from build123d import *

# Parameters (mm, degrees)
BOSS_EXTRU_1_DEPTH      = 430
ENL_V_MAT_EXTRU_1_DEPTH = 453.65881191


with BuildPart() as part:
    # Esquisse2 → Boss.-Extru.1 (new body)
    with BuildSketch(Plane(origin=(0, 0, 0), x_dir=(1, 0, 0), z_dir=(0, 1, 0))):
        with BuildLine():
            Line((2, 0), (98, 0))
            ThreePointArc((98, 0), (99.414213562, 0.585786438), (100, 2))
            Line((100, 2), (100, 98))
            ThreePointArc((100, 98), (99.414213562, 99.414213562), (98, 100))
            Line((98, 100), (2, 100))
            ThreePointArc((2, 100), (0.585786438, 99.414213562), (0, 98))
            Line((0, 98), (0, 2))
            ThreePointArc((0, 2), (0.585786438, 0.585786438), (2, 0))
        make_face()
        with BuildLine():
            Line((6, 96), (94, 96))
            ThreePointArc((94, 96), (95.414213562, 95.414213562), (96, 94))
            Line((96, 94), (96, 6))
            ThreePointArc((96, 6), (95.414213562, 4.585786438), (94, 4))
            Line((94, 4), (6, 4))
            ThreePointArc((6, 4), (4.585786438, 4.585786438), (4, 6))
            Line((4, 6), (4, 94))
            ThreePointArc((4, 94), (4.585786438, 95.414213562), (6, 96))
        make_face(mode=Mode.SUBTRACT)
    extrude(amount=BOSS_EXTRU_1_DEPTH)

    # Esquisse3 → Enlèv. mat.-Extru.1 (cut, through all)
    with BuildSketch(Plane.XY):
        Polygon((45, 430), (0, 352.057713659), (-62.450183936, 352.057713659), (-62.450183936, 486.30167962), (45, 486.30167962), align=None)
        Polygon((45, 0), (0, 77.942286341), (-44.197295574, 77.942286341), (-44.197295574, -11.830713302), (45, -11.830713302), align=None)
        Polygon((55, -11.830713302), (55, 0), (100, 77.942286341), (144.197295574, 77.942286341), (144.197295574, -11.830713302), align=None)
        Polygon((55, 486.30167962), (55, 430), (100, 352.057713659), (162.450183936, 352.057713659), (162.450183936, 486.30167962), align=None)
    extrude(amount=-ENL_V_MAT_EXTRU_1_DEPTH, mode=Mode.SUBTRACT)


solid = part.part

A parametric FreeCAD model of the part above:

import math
import FreeCAD as App
import Part
import Sketcher
Q = App.Units.Quantity


def add_polygon(sketch, points):
    """Adds a closed chain of lines whose ends are joined by coincident constraints."""
    first, n = sketch.GeometryCount, len(points)
    for a, b in zip(points, points[1:] + points[:1]):
        sketch.addGeometry(Part.LineSegment(App.Vector(*a, 0), App.Vector(*b, 0)), False)
    for i in range(n):
        sketch.addConstraint(Sketcher.Constraint("Coincident", first + i, 2, first + (i + 1) % n, 1))

doc = App.newDocument("Part")
params = doc.addObject("Spreadsheet::Sheet", "Params")
for row, (alias, value) in enumerate([
    ("sketch1_radius", "2 mm"),
    ("sketch1_width", "96 mm"),
    ("sketch1_width2", "88 mm"),
    ("pad1_length", "430 mm"),
    ("sketch2_length", "90 mm"),
], start=1):
    params.set(f"A{row}", alias)
    params.set(f"B{row}", "=" + value)
    params.setAlias(f"B{row}", alias)

body = doc.addObject("PartDesign::Body", "Body")

sketch1 = body.newObject("Sketcher::SketchObject", "Sketch")
sketch1.AttachmentSupport = (doc.getObject("XZ_Plane"), [""])
sketch1.MapMode = "FlatFace"
sketch1.addGeometry(Part.LineSegment(App.Vector(2, 0, 0), App.Vector(98, 0, 0)), False)
sketch1.addGeometry(Part.ArcOfCircle(Part.Circle(App.Vector(98, -2, 0), App.Vector(0, 0, 1), 2), math.radians(0), math.radians(90)), False)
sketch1.addGeometry(Part.LineSegment(App.Vector(100, -2, 0), App.Vector(100, -98, 0)), False)
sketch1.addGeometry(Part.ArcOfCircle(Part.Circle(App.Vector(98, -98, 0), App.Vector(0, 0, 1), 2), math.radians(-90), math.radians(0)), False)
sketch1.addGeometry(Part.LineSegment(App.Vector(98, -100, 0), App.Vector(2, -100, 0)), False)
sketch1.addGeometry(Part.ArcOfCircle(Part.Circle(App.Vector(2, -98, 0), App.Vector(0, 0, 1), 2), math.radians(-180), math.radians(-90)), False)
sketch1.addGeometry(Part.LineSegment(App.Vector(0, -98, 0), App.Vector(0, -2, 0)), False)
sketch1.addGeometry(Part.ArcOfCircle(Part.Circle(App.Vector(2, -2, 0), App.Vector(0, 0, 1), 2), math.radians(90), math.radians(180)), False)
sketch1.addGeometry(Part.ArcOfCircle(Part.Circle(App.Vector(6, -94, 0), App.Vector(0, 0, 1), 2), math.radians(-180), math.radians(-90)), False)
sketch1.addGeometry(Part.LineSegment(App.Vector(6, -96, 0), App.Vector(94, -96, 0)), False)
sketch1.addGeometry(Part.ArcOfCircle(Part.Circle(App.Vector(94, -94, 0), App.Vector(0, 0, 1), 2), math.radians(-90), math.radians(0)), False)
sketch1.addGeometry(Part.LineSegment(App.Vector(96, -94, 0), App.Vector(96, -6, 0)), False)
sketch1.addGeometry(Part.ArcOfCircle(Part.Circle(App.Vector(94, -6, 0), App.Vector(0, 0, 1), 2), math.radians(0), math.radians(90)), False)
sketch1.addGeometry(Part.LineSegment(App.Vector(94, -4, 0), App.Vector(6, -4, 0)), False)
sketch1.addGeometry(Part.ArcOfCircle(Part.Circle(App.Vector(6, -6, 0), App.Vector(0, 0, 1), 2), math.radians(90), math.radians(180)), False)
sketch1.addGeometry(Part.LineSegment(App.Vector(4, -6, 0), App.Vector(4, -94, 0)), False)
sketch1.addConstraint(Sketcher.Constraint("Tangent", 0, 2, 1, 2))
sketch1.addConstraint(Sketcher.Constraint("Tangent", 1, 1, 2, 1))
sketch1.addConstraint(Sketcher.Constraint("Tangent", 2, 2, 3, 2))
sketch1.addConstraint(Sketcher.Constraint("Tangent", 3, 1, 4, 1))
sketch1.addConstraint(Sketcher.Constraint("Tangent", 4, 2, 5, 2))
sketch1.addConstraint(Sketcher.Constraint("Tangent", 5, 1, 6, 1))
sketch1.addConstraint(Sketcher.Constraint("Tangent", 6, 2, 7, 2))
sketch1.addConstraint(Sketcher.Constraint("Tangent", 7, 1, 0, 1))
sketch1.addConstraint(Sketcher.Constraint("Tangent", 8, 2, 9, 1))
sketch1.addConstraint(Sketcher.Constraint("Tangent", 9, 2, 10, 1))
sketch1.addConstraint(Sketcher.Constraint("Tangent", 10, 2, 11, 1))
sketch1.addConstraint(Sketcher.Constraint("Tangent", 11, 2, 12, 1))
sketch1.addConstraint(Sketcher.Constraint("Tangent", 12, 2, 13, 1))
sketch1.addConstraint(Sketcher.Constraint("Tangent", 13, 2, 14, 1))
sketch1.addConstraint(Sketcher.Constraint("Tangent", 14, 2, 15, 1))
sketch1.addConstraint(Sketcher.Constraint("Tangent", 15, 2, 8, 1))
sketch1.addConstraint(Sketcher.Constraint("Horizontal", 0))
sketch1.addConstraint(Sketcher.Constraint("Vertical", 2))
sketch1.addConstraint(Sketcher.Constraint("Horizontal", 4))
sketch1.addConstraint(Sketcher.Constraint("Vertical", 6))
sketch1.addConstraint(Sketcher.Constraint("Horizontal", 9))
sketch1.addConstraint(Sketcher.Constraint("Vertical", 11))
sketch1.addConstraint(Sketcher.Constraint("Horizontal", 13))
sketch1.addConstraint(Sketcher.Constraint("Vertical", 15))
sketch1.addConstraint(Sketcher.Constraint("Equal", 1, 3))
sketch1.addConstraint(Sketcher.Constraint("Equal", 3, 5))
sketch1.addConstraint(Sketcher.Constraint("Equal", 5, 7))
sketch1.addConstraint(Sketcher.Constraint("Equal", 7, 8))
sketch1.addConstraint(Sketcher.Constraint("Equal", 8, 10))
sketch1.addConstraint(Sketcher.Constraint("Equal", 10, 12))
sketch1.addConstraint(Sketcher.Constraint("Equal", 12, 14))
sketch1.addConstraint(Sketcher.Constraint("PointOnObject", 0, 2, -1))
sketch1.addConstraint(Sketcher.Constraint("PointOnObject", 5, 1, -2))
sketch1.addConstraint(Sketcher.Constraint("Equal", 4, 2))
sketch1.addConstraint(Sketcher.Constraint("Equal", 13, 11))
sketch1.addConstraint(Sketcher.Constraint("Radius", 1, Q("2 mm")))
sketch1.addConstraint(Sketcher.Constraint("DistanceX", 0, 1, 0, 2, Q("96 mm")))
sketch1.addConstraint(Sketcher.Constraint("DistanceX", 9, 1, 9, 2, Q("88 mm")))
sketch1.addConstraint(Sketcher.Constraint("DistanceX", -1, 1, 8, 3, Q("6 mm")))
sketch1.addConstraint(Sketcher.Constraint("DistanceY", 8, 3, -1, 1, Q("94 mm")))
sketch1.setExpression("Constraints[35]", "Params.sketch1_radius")
sketch1.setExpression("Constraints[36]", "Params.sketch1_width")
sketch1.setExpression("Constraints[37]", "Params.sketch1_width2")
pad1 = body.newObject("PartDesign::Pad", "Pad")
pad1.Profile = sketch1
pad1.setExpression("Length", "Params.pad1_length")
pad1.Reversed = True

sketch2 = body.newObject("Sketcher::SketchObject", "Sketch001")
sketch2.AttachmentSupport = (doc.getObject("XY_Plane"), [""])
sketch2.MapMode = "FlatFace"
add_polygon(sketch2, [(0, 352), (45, 430), (45, 486), (-62, 486), (-62, 352)])
add_polygon(sketch2, [(45, 0), (0, 78), (-44, 78), (-44, -12), (45, -12)])
add_polygon(sketch2, [(55, 0), (55, -12), (144, -12), (144, 78), (100, 78)])
add_polygon(sketch2, [(55, 486), (55, 430), (100, 352), (162, 352), (162, 486)])
sketch2.addConstraint(Sketcher.Constraint("Vertical", 1))
sketch2.addConstraint(Sketcher.Constraint("Horizontal", 2))
sketch2.addConstraint(Sketcher.Constraint("Vertical", 3))
sketch2.addConstraint(Sketcher.Constraint("Horizontal", 4))
sketch2.addConstraint(Sketcher.Constraint("Horizontal", 6))
sketch2.addConstraint(Sketcher.Constraint("Vertical", 7))
sketch2.addConstraint(Sketcher.Constraint("Horizontal", 8))
sketch2.addConstraint(Sketcher.Constraint("Vertical", 9))
sketch2.addConstraint(Sketcher.Constraint("Vertical", 10))
sketch2.addConstraint(Sketcher.Constraint("Horizontal", 11))
sketch2.addConstraint(Sketcher.Constraint("Vertical", 12))
sketch2.addConstraint(Sketcher.Constraint("Horizontal", 13))
sketch2.addConstraint(Sketcher.Constraint("Vertical", 15))
sketch2.addConstraint(Sketcher.Constraint("Horizontal", 17))
sketch2.addConstraint(Sketcher.Constraint("Vertical", 18))
sketch2.addConstraint(Sketcher.Constraint("Horizontal", 19))
sketch2.addConstraint(Sketcher.Constraint("PointOnObject", 4, 2, -2))
sketch2.addConstraint(Sketcher.Constraint("PointOnObject", 5, 2, -2))
sketch2.addConstraint(Sketcher.Constraint("PointOnObject", 9, 2, -1))
sketch2.addConstraint(Sketcher.Constraint("PointOnObject", 14, 2, -1))
sketch2.addConstraint(Sketcher.Constraint("Parallel", 0, 14))
sketch2.addConstraint(Sketcher.Constraint("Parallel", 5, 16))
sketch2.addConstraint(Sketcher.Constraint("Horizontal", 8, 2, 10, 2))
sketch2.addConstraint(Sketcher.Constraint("Horizontal", 6, 2, 12, 2))
sketch2.addConstraint(Sketcher.Constraint("Horizontal", 0, 2, 15, 2))
sketch2.addConstraint(Sketcher.Constraint("Horizontal", 4, 2, 16, 2))
sketch2.addConstraint(Sketcher.Constraint("Horizontal", 2, 2, 18, 2))
sketch2.addConstraint(Sketcher.Constraint("Vertical", 1, 2, 8, 2))
sketch2.addConstraint(Sketcher.Constraint("Vertical", 14, 2, 15, 2))
sketch2.addConstraint(Sketcher.Constraint("Vertical", 13, 2, 16, 2))
sketch2.addConstraint(Sketcher.Constraint("Equal", 8, 11))
sketch2.addConstraint(Sketcher.Constraint("Equal", 4, 17))
sketch2.addConstraint(Sketcher.Constraint("Angle", 0, Q("60 deg")))
sketch2.addConstraint(Sketcher.Constraint("Distance", 0, Q("90 mm")))
sketch2.addConstraint(Sketcher.Constraint("DistanceY", -1, 1, 0, 2, Q("430 mm")))
sketch2.addConstraint(Sketcher.Constraint("DistanceX", -1, 1, 10, 2, Q("55 mm")))
sketch2.addConstraint(Sketcher.Constraint("DistanceY", 7, 2, 7, 1, Q("89.773 mm")))
sketch2.addConstraint(Sketcher.Constraint("DistanceY", 1, 1, 1, 2, Q("56.30168 mm")))
sketch2.addConstraint(Sketcher.Constraint("DistanceX", 2, 2, 2, 1, Q("107.450184 mm")))
sketch2.addConstraint(Sketcher.Constraint("DistanceX", 6, 2, 6, 1, Q("44.197296 mm")))
sketch2.setExpression("Constraints[53]", "Params.sketch2_length")
pocket1 = body.newObject("PartDesign::Pocket", "Pocket")
pocket1.Profile = sketch2
pocket1.Type = "ThroughAll"

doc.recompute()
